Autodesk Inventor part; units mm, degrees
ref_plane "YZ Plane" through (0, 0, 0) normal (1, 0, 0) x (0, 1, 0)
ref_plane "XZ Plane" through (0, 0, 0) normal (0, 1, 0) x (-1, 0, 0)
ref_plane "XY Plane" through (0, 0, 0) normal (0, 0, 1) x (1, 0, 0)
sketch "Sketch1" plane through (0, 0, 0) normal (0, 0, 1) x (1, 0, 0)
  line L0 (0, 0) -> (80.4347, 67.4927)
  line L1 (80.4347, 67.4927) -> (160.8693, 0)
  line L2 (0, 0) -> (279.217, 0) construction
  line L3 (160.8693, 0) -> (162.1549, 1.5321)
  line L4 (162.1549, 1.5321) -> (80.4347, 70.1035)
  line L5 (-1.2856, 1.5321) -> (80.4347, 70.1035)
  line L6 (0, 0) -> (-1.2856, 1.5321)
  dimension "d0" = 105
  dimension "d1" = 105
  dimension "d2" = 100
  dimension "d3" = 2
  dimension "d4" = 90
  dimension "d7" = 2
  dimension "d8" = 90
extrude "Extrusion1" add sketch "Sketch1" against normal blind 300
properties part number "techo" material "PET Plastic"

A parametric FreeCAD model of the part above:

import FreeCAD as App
import Part
import Sketcher
from FreeCAD import Vector
Q = App.Units.Quantity


def add_polygon(sketch, points):
    """Adds a closed chain of lines whose ends are joined by coincident constraints."""
    first, n = sketch.GeometryCount, len(points)
    for a, b in zip(points, points[1:] + points[:1]):
        sketch.addGeometry(Part.LineSegment(App.Vector(*a, 0), App.Vector(*b, 0)), False)
    for i in range(n):
        sketch.addConstraint(Sketcher.Constraint("Coincident", first + i, 2, first + (i + 1) % n, 1))

doc = App.newDocument("Part")
params = doc.addObject("Spreadsheet::Sheet", "Params")
for row, (alias, value) in enumerate([
    ("sketch1_length", "2 mm"),
    ("sketch1_length2", "105 mm"),
    ("pad1_length", "300 mm"),
], start=1):
    params.set(f"A{row}", alias)
    params.set(f"B{row}", "=" + value)
    params.setAlias(f"B{row}", alias)

body = doc.addObject("PartDesign::Body", "Body")

sketch1 = body.newObject("Sketcher::SketchObject", "Sketch")
sketch1.AttachmentSupport = (doc.getObject("XY_Plane"), [""])
sketch1.MapMode = "FlatFace"
add_polygon(sketch1, [(-1.3, 1.5), (0, 0), (80.4, 67.5), (160.9, 0), (162.2, 1.5), (80.4, 70.1)])
sketch1.addConstraint([
    Sketcher.Constraint("Coincident", 0, 2, -1, 1),
    Sketcher.Constraint("PointOnObject", 2, 2, -1),
    Sketcher.Constraint("Perpendicular", 0, 1),
    Sketcher.Constraint("Perpendicular", 2, 3),
    Sketcher.Constraint("Perpendicular", 3, 4),
    Sketcher.Constraint("Parallel", 1, 5),
    Sketcher.Constraint("Horizontal", 3, 2, 5, 2),
    Sketcher.Constraint("Vertical", 1, 2, 4, 2),
    Sketcher.Constraint("Distance", 0, 2.0),
    Sketcher.Constraint("Distance", 1, 105.0),
    Sketcher.Constraint("Angle", 0, Q("-49.9997 deg")),
])
sketch1.setExpression("Constraints[14]", "Params.sketch1_length")
sketch1.setExpression("Constraints[15]", "Params.sketch1_length2")
pad1 = body.newObject("PartDesign::Pad", "Pad")
pad1.Profile = sketch1
pad1.setExpression("Length", "Params.pad1_length")
pad1.Reversed = True

doc.recompute()
